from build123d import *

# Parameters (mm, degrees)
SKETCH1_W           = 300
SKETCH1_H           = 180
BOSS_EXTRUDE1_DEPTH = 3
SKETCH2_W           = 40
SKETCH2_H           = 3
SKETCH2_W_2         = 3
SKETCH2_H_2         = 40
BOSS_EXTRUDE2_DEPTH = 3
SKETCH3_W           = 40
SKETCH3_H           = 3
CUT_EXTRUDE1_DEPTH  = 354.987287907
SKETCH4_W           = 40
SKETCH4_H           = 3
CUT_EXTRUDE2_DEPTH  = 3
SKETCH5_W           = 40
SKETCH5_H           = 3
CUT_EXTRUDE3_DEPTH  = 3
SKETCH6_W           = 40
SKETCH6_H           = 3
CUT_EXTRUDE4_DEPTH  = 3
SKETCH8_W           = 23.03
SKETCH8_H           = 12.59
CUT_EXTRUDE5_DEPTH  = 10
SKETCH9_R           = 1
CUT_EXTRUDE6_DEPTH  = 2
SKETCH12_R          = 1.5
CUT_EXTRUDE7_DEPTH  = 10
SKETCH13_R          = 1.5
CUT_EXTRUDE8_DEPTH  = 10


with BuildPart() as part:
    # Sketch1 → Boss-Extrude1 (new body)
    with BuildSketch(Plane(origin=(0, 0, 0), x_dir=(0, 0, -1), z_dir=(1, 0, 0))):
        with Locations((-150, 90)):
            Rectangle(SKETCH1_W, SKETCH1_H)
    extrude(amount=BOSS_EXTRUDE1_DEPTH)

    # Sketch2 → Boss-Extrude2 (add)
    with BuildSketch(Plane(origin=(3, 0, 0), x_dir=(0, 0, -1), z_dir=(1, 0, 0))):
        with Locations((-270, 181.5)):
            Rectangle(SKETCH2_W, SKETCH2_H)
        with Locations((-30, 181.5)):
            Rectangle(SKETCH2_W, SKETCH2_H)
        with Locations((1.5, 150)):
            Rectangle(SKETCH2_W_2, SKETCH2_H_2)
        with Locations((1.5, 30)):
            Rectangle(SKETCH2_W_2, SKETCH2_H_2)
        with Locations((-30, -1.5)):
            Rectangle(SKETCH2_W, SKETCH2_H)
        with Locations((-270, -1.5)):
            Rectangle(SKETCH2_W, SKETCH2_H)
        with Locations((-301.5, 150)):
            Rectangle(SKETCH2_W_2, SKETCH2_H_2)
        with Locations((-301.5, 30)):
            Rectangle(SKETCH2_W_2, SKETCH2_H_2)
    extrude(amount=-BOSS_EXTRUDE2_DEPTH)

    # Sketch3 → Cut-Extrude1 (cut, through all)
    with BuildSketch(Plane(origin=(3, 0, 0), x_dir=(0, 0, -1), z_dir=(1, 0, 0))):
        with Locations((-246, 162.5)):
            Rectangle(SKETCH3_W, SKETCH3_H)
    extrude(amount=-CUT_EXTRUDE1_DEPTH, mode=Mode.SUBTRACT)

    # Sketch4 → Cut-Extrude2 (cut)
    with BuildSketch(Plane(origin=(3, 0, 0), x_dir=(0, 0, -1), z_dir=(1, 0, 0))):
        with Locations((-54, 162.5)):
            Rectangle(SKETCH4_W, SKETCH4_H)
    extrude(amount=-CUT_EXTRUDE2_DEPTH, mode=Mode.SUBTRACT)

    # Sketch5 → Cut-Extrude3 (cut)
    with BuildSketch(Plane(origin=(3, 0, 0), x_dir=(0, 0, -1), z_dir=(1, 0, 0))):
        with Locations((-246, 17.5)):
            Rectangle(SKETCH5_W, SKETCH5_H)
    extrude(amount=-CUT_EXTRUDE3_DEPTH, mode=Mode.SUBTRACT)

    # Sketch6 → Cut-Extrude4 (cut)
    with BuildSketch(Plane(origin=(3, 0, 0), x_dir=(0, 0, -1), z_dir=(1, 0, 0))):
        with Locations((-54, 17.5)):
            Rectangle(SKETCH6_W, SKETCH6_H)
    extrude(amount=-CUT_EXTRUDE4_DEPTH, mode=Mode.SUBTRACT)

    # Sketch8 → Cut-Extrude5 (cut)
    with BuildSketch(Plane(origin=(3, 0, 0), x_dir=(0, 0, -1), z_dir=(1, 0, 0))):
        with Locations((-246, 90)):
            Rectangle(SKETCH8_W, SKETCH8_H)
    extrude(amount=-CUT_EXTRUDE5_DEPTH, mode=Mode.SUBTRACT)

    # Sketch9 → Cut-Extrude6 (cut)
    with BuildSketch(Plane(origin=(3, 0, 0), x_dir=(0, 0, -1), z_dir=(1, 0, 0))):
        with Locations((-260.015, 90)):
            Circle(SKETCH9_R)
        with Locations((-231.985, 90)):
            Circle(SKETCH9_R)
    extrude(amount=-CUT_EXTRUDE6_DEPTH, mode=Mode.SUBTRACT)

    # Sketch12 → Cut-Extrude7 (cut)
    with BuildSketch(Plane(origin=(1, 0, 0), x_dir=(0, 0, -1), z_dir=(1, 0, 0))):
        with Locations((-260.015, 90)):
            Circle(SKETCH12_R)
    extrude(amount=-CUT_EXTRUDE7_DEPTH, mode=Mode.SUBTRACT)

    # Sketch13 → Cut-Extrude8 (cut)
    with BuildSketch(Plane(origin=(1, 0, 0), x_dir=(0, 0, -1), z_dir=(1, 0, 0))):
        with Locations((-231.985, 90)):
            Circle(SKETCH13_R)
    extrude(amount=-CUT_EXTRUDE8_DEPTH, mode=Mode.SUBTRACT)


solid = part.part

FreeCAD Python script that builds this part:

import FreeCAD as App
import Part
import Sketcher


def add_polygon(sketch, points):
    """Adds a closed chain of lines whose ends are joined by coincident constraints."""
    first, n = sketch.GeometryCount, len(points)
    for a, b in zip(points, points[1:] + points[:1]):
        sketch.addGeometry(Part.LineSegment(App.Vector(*a, 0), App.Vector(*b, 0)), False)
    for i in range(n):
        sketch.addConstraint(Sketcher.Constraint("Coincident", first + i, 2, first + (i + 1) % n, 1))

doc = App.newDocument("Part")
params = doc.addObject("Spreadsheet::Sheet", "Params")
for row, (alias, value) in enumerate([
    ("sketch1_width", "180 mm"),
    ("sketch1_height", "300 mm"),
    ("pad1_length", "3 mm"),
    ("sketch2_width", "3 mm"),
    ("sketch2_width2", "40 mm"),
    ("pad2_length", "3 mm"),
    ("sketch3_width", "3 mm"),
    ("sketch3_height", "40 mm"),
    ("sketch4_width", "3 mm"),
    ("sketch4_height", "40 mm"),
    ("pocket2_length", "3 mm"),
    ("sketch5_width", "3 mm"),
    ("sketch5_height", "40 mm"),
    ("pocket3_length", "3 mm"),
    ("sketch6_width", "3 mm"),
    ("sketch6_height", "40 mm"),
    ("pocket4_length", "3 mm"),
    ("sketch7_width", "12.59 mm"),
    ("sketch7_height", "23.03 mm"),
    ("pocket5_length", "10 mm"),
    ("sketch8_diameter", "2 mm"),
    ("pocket6_length", "2 mm"),
    ("sketch9_diameter", "3 mm"),
    ("pocket7_length", "10 mm"),
    ("sketch10_diameter", "3 mm"),
    ("pocket8_length", "10 mm"),
], start=1):
    params.set(f"A{row}", alias)
    params.set(f"B{row}", "=" + value)
    params.setAlias(f"B{row}", alias)

body = doc.addObject("PartDesign::Body", "Body")

# Sketch on YZ plane
sketch1 = doc.addObject("Sketcher::SketchObject", "Sketch")
body.addObject(sketch1)
sketch1.AttachmentSupport = (doc.YZ_Plane, [""])
sketch1.MapMode = "FlatFace"
add_polygon(sketch1, [(180, 300), (0, 300), (0, 0), (180, 0)])  # lines 0-3
sketch1.addConstraint(Sketcher.Constraint("Horizontal", 0))
sketch1.addConstraint(Sketcher.Constraint("Vertical", 1))
sketch1.addConstraint(Sketcher.Constraint("Horizontal", 2))
sketch1.addConstraint(Sketcher.Constraint("Vertical", 3))
sketch1.addConstraint(Sketcher.Constraint("Coincident", 1, 2, -1, 1))
sketch1.addConstraint(Sketcher.Constraint("DistanceX", 0, 2, 0, 1, 180.0))
sketch1.addConstraint(Sketcher.Constraint("DistanceY", 1, 2, 1, 1, 300.0))
sketch1.setExpression("Constraints[9]", "Params.sketch1_width")
sketch1.setExpression("Constraints[10]", "Params.sketch1_height")
pad1 = doc.addObject("PartDesign::Pad", "Pad")
body.addObject(pad1)
pad1.Profile = sketch1
pad1.setExpression("Length", "Params.pad1_length")

# Sketch on YZ plane
sketch2 = doc.addObject("Sketcher::SketchObject", "Sketch001")
body.addObject(sketch2)
sketch2.AttachmentSupport = (doc.YZ_Plane, [""])
sketch2.MapMode = "FlatFace"
sketch2.AttachmentOffset = App.Placement(App.Vector(0, 0, 3), App.Rotation())
add_polygon(sketch2, [(183, 290), (180, 290), (180, 250), (183, 250)])  # lines 0-3
add_polygon(sketch2, [(183, 50), (180, 50), (180, 10), (183, 10)])  # lines 4-7
add_polygon(sketch2, [(170, 0), (130, 0), (130, -3), (170, -3)])  # lines 8-11
add_polygon(sketch2, [(50, 0), (10, 0), (10, -3), (50, -3)])  # lines 12-15
add_polygon(sketch2, [(0, 50), (-3, 50), (-3, 10), (0, 10)])  # lines 16-19
add_polygon(sketch2, [(0, 290), (-3, 290), (-3, 250), (0, 250)])  # lines 20-23
add_polygon(sketch2, [(170, 303), (130, 303), (130, 300), (170, 300)])  # lines 24-27
add_polygon(sketch2, [(50, 303), (10, 303), (10, 300), (50, 300)])  # lines 28-31
sketch2.addConstraint(Sketcher.Constraint("Horizontal", 0))
sketch2.addConstraint(Sketcher.Constraint("Vertical", 1))
sketch2.addConstraint(Sketcher.Constraint("Horizontal", 2))
sketch2.addConstraint(Sketcher.Constraint("Vertical", 3))
sketch2.addConstraint(Sketcher.Constraint("Horizontal", 4))
sketch2.addConstraint(Sketcher.Constraint("Vertical", 5))
sketch2.addConstraint(Sketcher.Constraint("Horizontal", 6))
sketch2.addConstraint(Sketcher.Constraint("Vertical", 7))
sketch2.addConstraint(Sketcher.Constraint("Horizontal", 8))
sketch2.addConstraint(Sketcher.Constraint("Vertical", 9))
sketch2.addConstraint(Sketcher.Constraint("Horizontal", 10))
sketch2.addConstraint(Sketcher.Constraint("Vertical", 11))
sketch2.addConstraint(Sketcher.Constraint("Horizontal", 12))
sketch2.addConstraint(Sketcher.Constraint("Vertical", 13))
sketch2.addConstraint(Sketcher.Constraint("Horizontal", 14))
sketch2.addConstraint(Sketcher.Constraint("Vertical", 15))
sketch2.addConstraint(Sketcher.Constraint("Horizontal", 16))
sketch2.addConstraint(Sketcher.Constraint("Vertical", 17))
sketch2.addConstraint(Sketcher.Constraint("Horizontal", 18))
sketch2.addConstraint(Sketcher.Constraint("Vertical", 19))
sketch2.addConstraint(Sketcher.Constraint("Horizontal", 20))
sketch2.addConstraint(Sketcher.Constraint("Vertical", 21))
sketch2.addConstraint(Sketcher.Constraint("Horizontal", 22))
sketch2.addConstraint(Sketcher.Constraint("Vertical", 23))
sketch2.addConstraint(Sketcher.Constraint("Horizontal", 24))
sketch2.addConstraint(Sketcher.Constraint("Vertical", 25))
sketch2.addConstraint(Sketcher.Constraint("Horizontal", 26))
sketch2.addConstraint(Sketcher.Constraint("Vertical", 27))
sketch2.addConstraint(Sketcher.Constraint("Horizontal", 28))
sketch2.addConstraint(Sketcher.Constraint("Vertical", 29))
sketch2.addConstraint(Sketcher.Constraint("Horizontal", 30))
sketch2.addConstraint(Sketcher.Constraint("Vertical", 31))
sketch2.addConstraint(Sketcher.Constraint("PointOnObject", 8, 2, -1))
sketch2.addConstraint(Sketcher.Constraint("PointOnObject", 12, 2, -1))
sketch2.addConstraint(Sketcher.Constraint("PointOnObject", 18, 2, -2))
sketch2.addConstraint(Sketcher.Constraint("PointOnObject", 22, 2, -2))
sketch2.addConstraint(Sketcher.Constraint("Horizontal", 10, 2, 13, 2))
sketch2.addConstraint(Sketcher.Constraint("Horizontal", 7, 2, 16, 2))
sketch2.addConstraint(Sketcher.Constraint("Horizontal", 6, 2, 17, 2))
sketch2.addConstraint(Sketcher.Constraint("Horizontal", 3, 2, 20, 2))
sketch2.addConstraint(Sketcher.Constraint("Horizontal", 2, 2, 21, 2))
sketch2.addConstraint(Sketcher.Constraint("Horizontal", 27, 2, 28, 2))
sketch2.addConstraint(Sketcher.Constraint("Horizontal", 26, 2, 29, 2))
sketch2.addConstraint(Sketcher.Constraint("Vertical", 1, 2, 4, 2))
sketch2.addConstraint(Sketcher.Constraint("Vertical", 3, 2, 6, 2))
sketch2.addConstraint(Sketcher.Constraint("Vertical", 17, 2, 20, 2))
sketch2.addConstraint(Sketcher.Constraint("Vertical", 9, 2, 24, 2))
sketch2.addConstraint(Sketcher.Constraint("Vertical", 11, 2, 26, 2))
sketch2.addConstraint(Sketcher.Constraint("Vertical", 13, 2, 28, 2))
sketch2.addConstraint(Sketcher.Constraint("Vertical", 15, 2, 30, 2))
sketch2.addConstraint(Sketcher.Constraint("Equal", 10, 12))
sketch2.addConstraint(Sketcher.Constraint("Equal", 6, 16))
sketch2.addConstraint(Sketcher.Constraint("Equal", 30, 1))
sketch2.addConstraint(Sketcher.Constraint("Equal", 3, 5))
sketch2.addConstraint(Sketcher.Constraint("Equal", 22, 9))
sketch2.addConstraint(Sketcher.Constraint("Equal", 15, 25))
sketch2.addConstraint(Sketcher.Constraint("DistanceX", 0, 2, 0, 1, 3.0))
sketch2.addConstraint(Sketcher.Constraint("DistanceX", 8, 2, 8, 1, 40.0))
sketch2.addConstraint(Sketcher.Constraint("DistanceX", -1, 1, 0, 2, 180.0))
sketch2.addConstraint(Sketcher.Constraint("DistanceY", -1, 1, 0, 2, 290.0))
sketch2.addConstraint(Sketcher.Constraint("DistanceY", -1, 1, 4, 2, 50.0))
sketch2.addConstraint(Sketcher.Constraint("DistanceX", -1, 1, 8, 2, 130.0))
sketch2.addConstraint(Sketcher.Constraint("DistanceX", -1, 1, 12, 2, 10.0))
sketch2.addConstraint(Sketcher.Constraint("DistanceY", -1, 1, 24, 2, 303.0))
sketch2.setExpression("Constraints[88]", "Params.sketch2_width")
sketch2.setExpression("Constraints[89]", "Params.sketch2_width2")
pad2 = doc.addObject("PartDesign::Pad", "Pad001")
body.addObject(pad2)
pad2.Profile = sketch2
pad2.setExpression("Length", "Params.pad2_length")
pad2.Reversed = True

# Sketch on YZ plane
sketch3 = doc.addObject("Sketcher::SketchObject", "Sketch002")
body.addObject(sketch3)
sketch3.AttachmentSupport = (doc.YZ_Plane, [""])
sketch3.MapMode = "FlatFace"
sketch3.AttachmentOffset = App.Placement(App.Vector(0, 0, 3), App.Rotation())
add_polygon(sketch3, [(164, 266), (161, 266), (161, 226), (164, 226)])  # lines 0-3
sketch3.addConstraint(Sketcher.Constraint("Horizontal", 0))
sketch3.addConstraint(Sketcher.Constraint("Vertical", 1))
sketch3.addConstraint(Sketcher.Constraint("Horizontal", 2))
sketch3.addConstraint(Sketcher.Constraint("Vertical", 3))
sketch3.addConstraint(Sketcher.Constraint("DistanceX", 0, 2, 0, 1, 3.0))
sketch3.addConstraint(Sketcher.Constraint("DistanceY", 1, 2, 1, 1, 40.0))
sketch3.addConstraint(Sketcher.Constraint("DistanceX", -1, 1, 0, 2, 161.0))
sketch3.addConstraint(Sketcher.Constraint("DistanceY", -1, 1, 0, 2, 266.0))
sketch3.setExpression("Constraints[8]", "Params.sketch3_width")
sketch3.setExpression("Constraints[9]", "Params.sketch3_height")
pocket1 = doc.addObject("PartDesign::Pocket", "Pocket")
body.addObject(pocket1)
pocket1.Profile = sketch3
pocket1.Type = "ThroughAll"

# Sketch on YZ plane
sketch4 = doc.addObject("Sketcher::SketchObject", "Sketch003")
body.addObject(sketch4)
sketch4.AttachmentSupport = (doc.YZ_Plane, [""])
sketch4.MapMode = "FlatFace"
sketch4.AttachmentOffset = App.Placement(App.Vector(0, 0, 3), App.Rotation())
add_polygon(sketch4, [(164, 74), (161, 74), (161, 34), (164, 34)])  # lines 0-3
sketch4.addConstraint(Sketcher.Constraint("Horizontal", 0))
sketch4.addConstraint(Sketcher.Constraint("Vertical", 1))
sketch4.addConstraint(Sketcher.Constraint("Horizontal", 2))
sketch4.addConstraint(Sketcher.Constraint("Vertical", 3))
sketch4.addConstraint(Sketcher.Constraint("DistanceX", 0, 2, 0, 1, 3.0))
sketch4.addConstraint(Sketcher.Constraint("DistanceY", 1, 2, 1, 1, 40.0))
sketch4.addConstraint(Sketcher.Constraint("DistanceX", -1, 1, 0, 2, 161.0))
sketch4.addConstraint(Sketcher.Constraint("DistanceY", -1, 1, 0, 2, 74.0))
sketch4.setExpression("Constraints[8]", "Params.sketch4_width")
sketch4.setExpression("Constraints[9]", "Params.sketch4_height")
pocket2 = doc.addObject("PartDesign::Pocket", "Pocket001")
body.addObject(pocket2)
pocket2.Profile = sketch4
pocket2.setExpression("Length", "Params.pocket2_length")

# Sketch on YZ plane
sketch5 = doc.addObject("Sketcher::SketchObject", "Sketch004")
body.addObject(sketch5)
sketch5.AttachmentSupport = (doc.YZ_Plane, [""])
sketch5.MapMode = "FlatFace"
sketch5.AttachmentOffset = App.Placement(App.Vector(0, 0, 3), App.Rotation())
add_polygon(sketch5, [(19, 266), (16, 266), (16, 226), (19, 226)])  # lines 0-3
sketch5.addConstraint(Sketcher.Constraint("Horizontal", 0))
sketch5.addConstraint(Sketcher.Constraint("Vertical", 1))
sketch5.addConstraint(Sketcher.Constraint("Horizontal", 2))
sketch5.addConstraint(Sketcher.Constraint("Vertical", 3))
sketch5.addConstraint(Sketcher.Constraint("DistanceX", 0, 2, 0, 1, 3.0))
sketch5.addConstraint(Sketcher.Constraint("DistanceY", 1, 2, 1, 1, 40.0))
sketch5.addConstraint(Sketcher.Constraint("DistanceX", -1, 1, 0, 2, 16.0))
sketch5.addConstraint(Sketcher.Constraint("DistanceY", -1, 1, 0, 2, 266.0))
sketch5.setExpression("Constraints[8]", "Params.sketch5_width")
sketch5.setExpression("Constraints[9]", "Params.sketch5_height")
pocket3 = doc.addObject("PartDesign::Pocket", "Pocket002")
body.addObject(pocket3)
pocket3.Profile = sketch5
pocket3.setExpression("Length", "Params.pocket3_length")

# Sketch on YZ plane
sketch6 = doc.addObject("Sketcher::SketchObject", "Sketch005")
body.addObject(sketch6)
sketch6.AttachmentSupport = (doc.YZ_Plane, [""])
sketch6.MapMode = "FlatFace"
sketch6.AttachmentOffset = App.Placement(App.Vector(0, 0, 3), App.Rotation())
add_polygon(sketch6, [(19, 74), (16, 74), (16, 34), (19, 34)])  # lines 0-3
sketch6.addConstraint(Sketcher.Constraint("Horizontal", 0))
sketch6.addConstraint(Sketcher.Constraint("Vertical", 1))
sketch6.addConstraint(Sketcher.Constraint("Horizontal", 2))
sketch6.addConstraint(Sketcher.Constraint("Vertical", 3))
sketch6.addConstraint(Sketcher.Constraint("DistanceX", 0, 2, 0, 1, 3.0))
sketch6.addConstraint(Sketcher.Constraint("DistanceY", 1, 2, 1, 1, 40.0))
sketch6.addConstraint(Sketcher.Constraint("DistanceX", -1, 1, 0, 2, 16.0))
sketch6.addConstraint(Sketcher.Constraint("DistanceY", -1, 1, 0, 2, 74.0))
sketch6.setExpression("Constraints[8]", "Params.sketch6_width")
sketch6.setExpression("Constraints[9]", "Params.sketch6_height")
pocket4 = doc.addObject("PartDesign::Pocket", "Pocket003")
body.addObject(pocket4)
pocket4.Profile = sketch6
pocket4.setExpression("Length", "Params.pocket4_length")

# Sketch on YZ plane
sketch7 = doc.addObject("Sketcher::SketchObject", "Sketch006")
body.addObject(sketch7)
sketch7.AttachmentSupport = (doc.YZ_Plane, [""])
sketch7.MapMode = "FlatFace"
sketch7.AttachmentOffset = App.Placement(App.Vector(0, 0, 3), App.Rotation())
add_polygon(sketch7, [(96, 258), (84, 258), (84, 234), (96, 234)])  # lines 0-3
sketch7.addConstraint(Sketcher.Constraint("Horizontal", 0))
sketch7.addConstraint(Sketcher.Constraint("Vertical", 1))
sketch7.addConstraint(Sketcher.Constraint("Horizontal", 2))
sketch7.addConstraint(Sketcher.Constraint("Vertical", 3))
sketch7.addConstraint(Sketcher.Constraint("DistanceX", 0, 2, 0, 1, 12.59))
sketch7.addConstraint(Sketcher.Constraint("DistanceY", 1, 2, 1, 1, 23.03))
sketch7.addConstraint(Sketcher.Constraint("DistanceX", -1, 1, 0, 2, 83.705))
sketch7.addConstraint(Sketcher.Constraint("DistanceY", -1, 1, 0, 2, 257.515))
sketch7.setExpression("Constraints[8]", "Params.sketch7_width")
sketch7.setExpression("Constraints[9]", "Params.sketch7_height")
pocket5 = doc.addObject("PartDesign::Pocket", "Pocket004")
body.addObject(pocket5)
pocket5.Profile = sketch7
pocket5.setExpression("Length", "Params.pocket5_length")

# Sketch on YZ plane
sketch8 = doc.addObject("Sketcher::SketchObject", "Sketch007")
body.addObject(sketch8)
sketch8.AttachmentSupport = (doc.YZ_Plane, [""])
sketch8.MapMode = "FlatFace"
sketch8.AttachmentOffset = App.Placement(App.Vector(0, 0, 3), App.Rotation())
sketch8.addGeometry(Part.Circle(App.Vector(90, 260, 0), App.Vector(0, 0, 1), 1), False)
sketch8.addGeometry(Part.Circle(App.Vector(90, 232, 0), App.Vector(0, 0, 1), 1), False)
sketch8.addConstraint(Sketcher.Constraint("Equal", 0, 1))
sketch8.addConstraint(Sketcher.Constraint("Vertical", 0, 3, 1, 3))
sketch8.addConstraint(Sketcher.Constraint("Diameter", 0, 2.0))
sketch8.addConstraint(Sketcher.Constraint("DistanceX", -1, 1, 0, 3, 90.0))
sketch8.addConstraint(Sketcher.Constraint("DistanceY", 1, 3, 0, 3, 28.03))
sketch8.addConstraint(Sketcher.Constraint("DistanceY", -1, 1, 0, 3, 260.015))
sketch8.setExpression("Constraints[2]", "Params.sketch8_diameter")
pocket6 = doc.addObject("PartDesign::Pocket", "Pocket005")
body.addObject(pocket6)
pocket6.Profile = sketch8
pocket6.setExpression("Length", "Params.pocket6_length")

# Sketch on YZ plane
sketch9 = doc.addObject("Sketcher::SketchObject", "Sketch008")
body.addObject(sketch9)
sketch9.AttachmentSupport = (doc.YZ_Plane, [""])
sketch9.MapMode = "FlatFace"
sketch9.AttachmentOffset = App.Placement(App.Vector(0, 0, 1), App.Rotation())
sketch9.addGeometry(Part.Circle(App.Vector(90, 260, 0), App.Vector(0, 0, 1), 1.5), False)
sketch9.addConstraint(Sketcher.Constraint("Diameter", 0, 3.0))
sketch9.addConstraint(Sketcher.Constraint("DistanceX", -1, 1, 0, 3, 90.0))
sketch9.addConstraint(Sketcher.Constraint("DistanceY", -1, 1, 0, 3, 260.015))
sketch9.setExpression("Constraints[0]", "Params.sketch9_diameter")
pocket7 = doc.addObject("PartDesign::Pocket", "Pocket006")
body.addObject(pocket7)
pocket7.Profile = sketch9
pocket7.setExpression("Length", "Params.pocket7_length")

# Sketch on YZ plane
sketch10 = doc.addObject("Sketcher::SketchObject", "Sketch009")
body.addObject(sketch10)
sketch10.AttachmentSupport = (doc.YZ_Plane, [""])
sketch10.MapMode = "FlatFace"
sketch10.AttachmentOffset = App.Placement(App.Vector(0, 0, 1), App.Rotation())
sketch10.addGeometry(Part.Circle(App.Vector(90, 232, 0), App.Vector(0, 0, 1), 1.5), False)
sketch10.addConstraint(Sketcher.Constraint("Diameter", 0, 3.0))
sketch10.addConstraint(Sketcher.Constraint("DistanceX", -1, 1, 0, 3, 90.0))
sketch10.addConstraint(Sketcher.Constraint("DistanceY", -1, 1, 0, 3, 231.985))
sketch10.setExpression("Constraints[0]", "Params.sketch10_diameter")
pocket8 = doc.addObject("PartDesign::Pocket", "Pocket007")
body.addObject(pocket8)
pocket8.Profile = sketch10
pocket8.setExpression("Length", "Params.pocket8_length")

doc.recompute()
